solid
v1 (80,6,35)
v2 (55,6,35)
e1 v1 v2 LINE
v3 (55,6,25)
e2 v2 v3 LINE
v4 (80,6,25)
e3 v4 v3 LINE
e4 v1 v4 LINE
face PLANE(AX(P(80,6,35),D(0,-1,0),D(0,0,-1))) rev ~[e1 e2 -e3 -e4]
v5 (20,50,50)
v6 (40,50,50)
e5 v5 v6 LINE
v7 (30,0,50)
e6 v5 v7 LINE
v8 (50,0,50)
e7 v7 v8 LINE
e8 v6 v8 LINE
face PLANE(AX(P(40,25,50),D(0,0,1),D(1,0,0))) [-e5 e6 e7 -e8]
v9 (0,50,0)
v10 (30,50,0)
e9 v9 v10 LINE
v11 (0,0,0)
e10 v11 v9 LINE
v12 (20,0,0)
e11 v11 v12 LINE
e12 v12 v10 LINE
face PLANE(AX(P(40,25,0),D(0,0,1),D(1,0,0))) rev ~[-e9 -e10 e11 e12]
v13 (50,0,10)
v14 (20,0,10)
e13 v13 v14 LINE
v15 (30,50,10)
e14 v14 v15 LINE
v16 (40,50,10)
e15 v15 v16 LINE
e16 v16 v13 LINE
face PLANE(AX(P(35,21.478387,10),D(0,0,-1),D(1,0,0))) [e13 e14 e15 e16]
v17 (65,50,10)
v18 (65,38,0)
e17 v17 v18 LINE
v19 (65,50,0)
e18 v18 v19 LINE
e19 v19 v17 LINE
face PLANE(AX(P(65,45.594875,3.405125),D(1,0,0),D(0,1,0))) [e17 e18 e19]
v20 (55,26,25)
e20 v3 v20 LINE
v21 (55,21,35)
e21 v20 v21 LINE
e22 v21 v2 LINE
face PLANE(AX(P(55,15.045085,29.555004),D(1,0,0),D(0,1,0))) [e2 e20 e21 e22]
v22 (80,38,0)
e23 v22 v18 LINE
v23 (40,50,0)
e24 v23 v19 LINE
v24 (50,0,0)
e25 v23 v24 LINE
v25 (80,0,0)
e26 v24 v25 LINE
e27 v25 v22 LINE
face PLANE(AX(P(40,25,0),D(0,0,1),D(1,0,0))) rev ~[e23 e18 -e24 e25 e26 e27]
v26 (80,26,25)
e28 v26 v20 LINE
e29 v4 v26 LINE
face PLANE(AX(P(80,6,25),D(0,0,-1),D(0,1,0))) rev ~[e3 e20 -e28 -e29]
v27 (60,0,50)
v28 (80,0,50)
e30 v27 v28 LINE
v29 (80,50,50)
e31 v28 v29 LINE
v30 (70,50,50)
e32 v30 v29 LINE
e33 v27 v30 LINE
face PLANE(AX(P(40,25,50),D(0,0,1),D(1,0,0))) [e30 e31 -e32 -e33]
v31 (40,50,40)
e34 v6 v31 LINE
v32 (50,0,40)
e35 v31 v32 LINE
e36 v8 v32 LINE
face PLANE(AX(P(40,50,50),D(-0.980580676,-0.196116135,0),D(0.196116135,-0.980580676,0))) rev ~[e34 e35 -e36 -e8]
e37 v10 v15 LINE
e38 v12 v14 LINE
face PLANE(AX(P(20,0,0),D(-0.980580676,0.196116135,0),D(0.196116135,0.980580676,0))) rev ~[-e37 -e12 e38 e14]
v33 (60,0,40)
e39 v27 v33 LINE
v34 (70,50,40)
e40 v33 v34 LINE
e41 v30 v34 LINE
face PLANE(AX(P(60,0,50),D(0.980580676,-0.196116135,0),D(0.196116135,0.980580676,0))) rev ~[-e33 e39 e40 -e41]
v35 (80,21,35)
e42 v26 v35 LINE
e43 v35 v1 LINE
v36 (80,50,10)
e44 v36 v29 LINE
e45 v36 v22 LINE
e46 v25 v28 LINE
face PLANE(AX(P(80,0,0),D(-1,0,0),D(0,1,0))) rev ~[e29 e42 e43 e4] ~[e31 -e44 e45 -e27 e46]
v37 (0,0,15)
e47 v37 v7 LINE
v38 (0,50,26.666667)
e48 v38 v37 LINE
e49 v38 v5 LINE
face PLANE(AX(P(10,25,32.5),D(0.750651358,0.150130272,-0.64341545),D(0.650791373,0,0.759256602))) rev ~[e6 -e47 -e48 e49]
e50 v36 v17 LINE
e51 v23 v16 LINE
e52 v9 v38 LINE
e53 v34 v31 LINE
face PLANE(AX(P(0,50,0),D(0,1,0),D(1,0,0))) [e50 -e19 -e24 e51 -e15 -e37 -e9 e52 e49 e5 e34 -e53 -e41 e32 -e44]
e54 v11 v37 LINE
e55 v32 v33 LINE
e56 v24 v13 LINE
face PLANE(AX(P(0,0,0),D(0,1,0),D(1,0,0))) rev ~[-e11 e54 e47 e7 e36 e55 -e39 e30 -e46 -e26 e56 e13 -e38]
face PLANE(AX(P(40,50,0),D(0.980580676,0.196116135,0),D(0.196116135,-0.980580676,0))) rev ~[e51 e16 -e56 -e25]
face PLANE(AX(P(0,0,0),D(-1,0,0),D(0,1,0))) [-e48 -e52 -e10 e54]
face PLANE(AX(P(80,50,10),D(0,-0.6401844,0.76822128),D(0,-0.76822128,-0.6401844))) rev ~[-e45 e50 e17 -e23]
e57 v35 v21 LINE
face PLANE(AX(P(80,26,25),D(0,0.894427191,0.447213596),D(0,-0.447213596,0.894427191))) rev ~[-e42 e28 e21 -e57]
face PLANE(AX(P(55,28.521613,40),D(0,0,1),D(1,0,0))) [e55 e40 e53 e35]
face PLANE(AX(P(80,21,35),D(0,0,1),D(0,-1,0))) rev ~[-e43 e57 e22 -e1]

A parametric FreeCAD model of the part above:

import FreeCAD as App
import Part
import Sketcher


def add_polygon(sketch, points):
    """Adds a closed chain of lines whose ends are joined by coincident constraints."""
    first, n = sketch.GeometryCount, len(points)
    for a, b in zip(points, points[1:] + points[:1]):
        sketch.addGeometry(Part.LineSegment(App.Vector(*a, 0), App.Vector(*b, 0)), False)
    for i in range(n):
        sketch.addConstraint(Sketcher.Constraint("Coincident", first + i, 2, first + (i + 1) % n, 1))

doc = App.newDocument("Part")
body = doc.addObject("PartDesign::Body", "Body")

# Sketch on XY plane
sketch1 = doc.addObject("Sketcher::SketchObject", "Sketch")
body.addObject(sketch1)
sketch1.AttachmentSupport = (doc.XY_Plane, [""])
sketch1.MapMode = "FlatFace"
add_polygon(sketch1, [(0, 50), (0, 0), (80, 0), (80, 50)])  # lines 0-3
sketch1.addConstraint([
    Sketcher.Constraint("Vertical", 0),
    Sketcher.Constraint("Horizontal", 1),
    Sketcher.Constraint("Vertical", 2),
    Sketcher.Constraint("Horizontal", 3),
    Sketcher.Constraint("Coincident", 0, 2, -1, 1),
    Sketcher.Constraint("DistanceX", 1, 1, 1, 2, 80.0),
    Sketcher.Constraint("DistanceY", 0, 2, 0, 1, 50.0),
])
pad1 = doc.addObject("PartDesign::Pad", "Pad")
body.addObject(pad1)
pad1.Profile = sketch1
pad1.Length = 50

# Sketch on XY plane
sketch2 = doc.addObject("Sketcher::SketchObject", "Sketch001")
body.addObject(sketch2)
sketch2.AttachmentSupport = (doc.XY_Plane, [""])
sketch2.MapMode = "FlatFace"
sketch2.AttachmentOffset = App.Placement(App.Vector(0, 0, 50), App.Rotation())
add_polygon(sketch2, [(70, 50), (40, 50), (50, 0), (60, 0)])  # lines 0-3
sketch2.addConstraint([
    Sketcher.Constraint("Horizontal", 0),
    Sketcher.Constraint("Horizontal", 2),
    Sketcher.Constraint("PointOnObject", 1, 2, -1),
    Sketcher.Constraint("Equal", 1, 3),
    Sketcher.Constraint("DistanceX", 0, 2, 0, 1, 30.0),
    Sketcher.Constraint("DistanceX", 2, 1, 2, 2, 10.0),
    Sketcher.Constraint("DistanceX", -1, 1, 0, 2, 40.0),
    Sketcher.Constraint("DistanceY", -1, 1, 0, 2, 50.0),
])
pocket1 = doc.addObject("PartDesign::Pocket", "Pocket")
body.addObject(pocket1)
pocket1.Profile = sketch2
pocket1.Length = 10

# Sketch on XY plane
sketch3 = doc.addObject("Sketcher::SketchObject", "Sketch002")
body.addObject(sketch3)
sketch3.AttachmentSupport = (doc.XY_Plane, [""])
sketch3.MapMode = "FlatFace"
add_polygon(sketch3, [(50, 0), (20, 0), (30, 50), (40, 50)])  # lines 0-3
sketch3.addConstraint([
    Sketcher.Constraint("Horizontal", 0),
    Sketcher.Constraint("Horizontal", 2),
    Sketcher.Constraint("PointOnObject", 0, 2, -1),
    Sketcher.Constraint("Equal", 1, 3),
    Sketcher.Constraint("DistanceX", 0, 2, 0, 1, 30.0),
    Sketcher.Constraint("DistanceX", 2, 1, 2, 2, 10.0),
    Sketcher.Constraint("DistanceX", -1, 1, 0, 2, 20.0),
    Sketcher.Constraint("DistanceY", -1, 1, 1, 2, 50.0),
])
pocket2 = doc.addObject("PartDesign::Pocket", "Pocket001")
body.addObject(pocket2)
pocket2.Profile = sketch3
pocket2.Length = 10
pocket2.Reversed = True

# Sketch on YZ plane
sketch4 = doc.addObject("Sketcher::SketchObject", "Sketch003")
body.addObject(sketch4)
sketch4.AttachmentSupport = (doc.YZ_Plane, [""])
sketch4.MapMode = "FlatFace"
sketch4.AttachmentOffset = App.Placement(App.Vector(0, 0, 80), App.Rotation())
add_polygon(sketch4, [(21, 35), (6, 35), (6, 25), (26, 25)])  # lines 0-3
sketch4.addConstraint([
    Sketcher.Constraint("Horizontal", 0),
    Sketcher.Constraint("Vertical", 1),
    Sketcher.Constraint("Horizontal", 2),
    Sketcher.Constraint("DistanceX", 0, 2, 0, 1, 15.0),
    Sketcher.Constraint("DistanceX", 2, 1, 2, 2, 20.0),
    Sketcher.Constraint("DistanceY", 1, 2, 1, 1, 10.0),
    Sketcher.Constraint("DistanceX", -1, 1, 0, 2, 6.0),
    Sketcher.Constraint("DistanceY", -1, 1, 0, 2, 35.0),
])
pocket3 = doc.addObject("PartDesign::Pocket", "Pocket002")
body.addObject(pocket3)
pocket3.Profile = sketch4
pocket3.Length = 25

# Sketch on YZ plane
sketch5 = doc.addObject("Sketcher::SketchObject", "Sketch004")
body.addObject(sketch5)
sketch5.AttachmentSupport = (doc.YZ_Plane, [""])
sketch5.MapMode = "FlatFace"
sketch5.AttachmentOffset = App.Placement(App.Vector(0, 0, 80), App.Rotation())
add_polygon(sketch5, [(50, 0), (50, 10), (38, 0)])  # lines 0-2
sketch5.addConstraint([
    Sketcher.Constraint("Vertical", 0),
    Sketcher.Constraint("Horizontal", 2),
    Sketcher.Constraint("PointOnObject", 1, 2, -1),
    Sketcher.Constraint("DistanceX", 2, 1, 2, 2, 12.0),
    Sketcher.Constraint("DistanceY", 0, 1, 0, 2, 10.0),
    Sketcher.Constraint("DistanceX", -1, 1, 0, 2, 50.0),
])
pocket4 = doc.addObject("PartDesign::Pocket", "Pocket003")
body.addObject(pocket4)
pocket4.Profile = sketch5
pocket4.Length = 15

# Sketch on XZ plane
sketch6 = doc.addObject("Sketcher::SketchObject", "Sketch005")
body.addObject(sketch6)
sketch6.AttachmentSupport = (doc.XZ_Plane, [""])
sketch6.MapMode = "FlatFace"
add_polygon(sketch6, [(0, 15), (30, 50), (0, 50)])  # lines 0-2
sketch6.addConstraint([
    Sketcher.Constraint("Horizontal", 1),
    Sketcher.Constraint("Vertical", 2),
    Sketcher.Constraint("PointOnObject", 1, 2, -2),
    Sketcher.Constraint("DistanceX", 1, 2, 1, 1, 30.0),
    Sketcher.Constraint("DistanceY", 2, 2, 2, 1, 35.0),
    Sketcher.Constraint("DistanceY", -1, 1, 0, 2, 50.0),
])

# Sketch on an angled plane
sketch7 = doc.addObject("Sketcher::SketchObject", "Sketch006")
body.addObject(sketch7)
sketch7.Placement = App.Placement(App.Vector(28.846154, 5.769231, 0), App.Rotation(App.Vector(0.196116135, -0.980580676, 0), App.Vector(0, 0, 1.000000001), App.Vector(-0.980580676, -0.196116135, 0), "ZXY"))
sketch7.addGeometry(Part.LineSegment(App.Vector(-45.106711, 50, 0), App.Vector(5.883484, 50, 0)), False)
sketch7.addConstraint([
    Sketcher.Constraint("Horizontal", 0),
    Sketcher.Constraint("DistanceY", -1, 1, 0, 1, 50.0),
    Sketcher.Constraint("DistanceX", 0, 1, 0, 2, 50.990195),
    Sketcher.Constraint("DistanceX", 0, 1, -1, 1, 45.106711),
])
doc.recompute()

subtractivepipe = doc.addObject("PartDesign::SubtractivePipe", "SubtractivePipe")
body.addObject(subtractivepipe)
subtractivepipe.Profile = sketch6
subtractivepipe.Spine = (sketch7, ["Edge1"])

doc.recompute()
